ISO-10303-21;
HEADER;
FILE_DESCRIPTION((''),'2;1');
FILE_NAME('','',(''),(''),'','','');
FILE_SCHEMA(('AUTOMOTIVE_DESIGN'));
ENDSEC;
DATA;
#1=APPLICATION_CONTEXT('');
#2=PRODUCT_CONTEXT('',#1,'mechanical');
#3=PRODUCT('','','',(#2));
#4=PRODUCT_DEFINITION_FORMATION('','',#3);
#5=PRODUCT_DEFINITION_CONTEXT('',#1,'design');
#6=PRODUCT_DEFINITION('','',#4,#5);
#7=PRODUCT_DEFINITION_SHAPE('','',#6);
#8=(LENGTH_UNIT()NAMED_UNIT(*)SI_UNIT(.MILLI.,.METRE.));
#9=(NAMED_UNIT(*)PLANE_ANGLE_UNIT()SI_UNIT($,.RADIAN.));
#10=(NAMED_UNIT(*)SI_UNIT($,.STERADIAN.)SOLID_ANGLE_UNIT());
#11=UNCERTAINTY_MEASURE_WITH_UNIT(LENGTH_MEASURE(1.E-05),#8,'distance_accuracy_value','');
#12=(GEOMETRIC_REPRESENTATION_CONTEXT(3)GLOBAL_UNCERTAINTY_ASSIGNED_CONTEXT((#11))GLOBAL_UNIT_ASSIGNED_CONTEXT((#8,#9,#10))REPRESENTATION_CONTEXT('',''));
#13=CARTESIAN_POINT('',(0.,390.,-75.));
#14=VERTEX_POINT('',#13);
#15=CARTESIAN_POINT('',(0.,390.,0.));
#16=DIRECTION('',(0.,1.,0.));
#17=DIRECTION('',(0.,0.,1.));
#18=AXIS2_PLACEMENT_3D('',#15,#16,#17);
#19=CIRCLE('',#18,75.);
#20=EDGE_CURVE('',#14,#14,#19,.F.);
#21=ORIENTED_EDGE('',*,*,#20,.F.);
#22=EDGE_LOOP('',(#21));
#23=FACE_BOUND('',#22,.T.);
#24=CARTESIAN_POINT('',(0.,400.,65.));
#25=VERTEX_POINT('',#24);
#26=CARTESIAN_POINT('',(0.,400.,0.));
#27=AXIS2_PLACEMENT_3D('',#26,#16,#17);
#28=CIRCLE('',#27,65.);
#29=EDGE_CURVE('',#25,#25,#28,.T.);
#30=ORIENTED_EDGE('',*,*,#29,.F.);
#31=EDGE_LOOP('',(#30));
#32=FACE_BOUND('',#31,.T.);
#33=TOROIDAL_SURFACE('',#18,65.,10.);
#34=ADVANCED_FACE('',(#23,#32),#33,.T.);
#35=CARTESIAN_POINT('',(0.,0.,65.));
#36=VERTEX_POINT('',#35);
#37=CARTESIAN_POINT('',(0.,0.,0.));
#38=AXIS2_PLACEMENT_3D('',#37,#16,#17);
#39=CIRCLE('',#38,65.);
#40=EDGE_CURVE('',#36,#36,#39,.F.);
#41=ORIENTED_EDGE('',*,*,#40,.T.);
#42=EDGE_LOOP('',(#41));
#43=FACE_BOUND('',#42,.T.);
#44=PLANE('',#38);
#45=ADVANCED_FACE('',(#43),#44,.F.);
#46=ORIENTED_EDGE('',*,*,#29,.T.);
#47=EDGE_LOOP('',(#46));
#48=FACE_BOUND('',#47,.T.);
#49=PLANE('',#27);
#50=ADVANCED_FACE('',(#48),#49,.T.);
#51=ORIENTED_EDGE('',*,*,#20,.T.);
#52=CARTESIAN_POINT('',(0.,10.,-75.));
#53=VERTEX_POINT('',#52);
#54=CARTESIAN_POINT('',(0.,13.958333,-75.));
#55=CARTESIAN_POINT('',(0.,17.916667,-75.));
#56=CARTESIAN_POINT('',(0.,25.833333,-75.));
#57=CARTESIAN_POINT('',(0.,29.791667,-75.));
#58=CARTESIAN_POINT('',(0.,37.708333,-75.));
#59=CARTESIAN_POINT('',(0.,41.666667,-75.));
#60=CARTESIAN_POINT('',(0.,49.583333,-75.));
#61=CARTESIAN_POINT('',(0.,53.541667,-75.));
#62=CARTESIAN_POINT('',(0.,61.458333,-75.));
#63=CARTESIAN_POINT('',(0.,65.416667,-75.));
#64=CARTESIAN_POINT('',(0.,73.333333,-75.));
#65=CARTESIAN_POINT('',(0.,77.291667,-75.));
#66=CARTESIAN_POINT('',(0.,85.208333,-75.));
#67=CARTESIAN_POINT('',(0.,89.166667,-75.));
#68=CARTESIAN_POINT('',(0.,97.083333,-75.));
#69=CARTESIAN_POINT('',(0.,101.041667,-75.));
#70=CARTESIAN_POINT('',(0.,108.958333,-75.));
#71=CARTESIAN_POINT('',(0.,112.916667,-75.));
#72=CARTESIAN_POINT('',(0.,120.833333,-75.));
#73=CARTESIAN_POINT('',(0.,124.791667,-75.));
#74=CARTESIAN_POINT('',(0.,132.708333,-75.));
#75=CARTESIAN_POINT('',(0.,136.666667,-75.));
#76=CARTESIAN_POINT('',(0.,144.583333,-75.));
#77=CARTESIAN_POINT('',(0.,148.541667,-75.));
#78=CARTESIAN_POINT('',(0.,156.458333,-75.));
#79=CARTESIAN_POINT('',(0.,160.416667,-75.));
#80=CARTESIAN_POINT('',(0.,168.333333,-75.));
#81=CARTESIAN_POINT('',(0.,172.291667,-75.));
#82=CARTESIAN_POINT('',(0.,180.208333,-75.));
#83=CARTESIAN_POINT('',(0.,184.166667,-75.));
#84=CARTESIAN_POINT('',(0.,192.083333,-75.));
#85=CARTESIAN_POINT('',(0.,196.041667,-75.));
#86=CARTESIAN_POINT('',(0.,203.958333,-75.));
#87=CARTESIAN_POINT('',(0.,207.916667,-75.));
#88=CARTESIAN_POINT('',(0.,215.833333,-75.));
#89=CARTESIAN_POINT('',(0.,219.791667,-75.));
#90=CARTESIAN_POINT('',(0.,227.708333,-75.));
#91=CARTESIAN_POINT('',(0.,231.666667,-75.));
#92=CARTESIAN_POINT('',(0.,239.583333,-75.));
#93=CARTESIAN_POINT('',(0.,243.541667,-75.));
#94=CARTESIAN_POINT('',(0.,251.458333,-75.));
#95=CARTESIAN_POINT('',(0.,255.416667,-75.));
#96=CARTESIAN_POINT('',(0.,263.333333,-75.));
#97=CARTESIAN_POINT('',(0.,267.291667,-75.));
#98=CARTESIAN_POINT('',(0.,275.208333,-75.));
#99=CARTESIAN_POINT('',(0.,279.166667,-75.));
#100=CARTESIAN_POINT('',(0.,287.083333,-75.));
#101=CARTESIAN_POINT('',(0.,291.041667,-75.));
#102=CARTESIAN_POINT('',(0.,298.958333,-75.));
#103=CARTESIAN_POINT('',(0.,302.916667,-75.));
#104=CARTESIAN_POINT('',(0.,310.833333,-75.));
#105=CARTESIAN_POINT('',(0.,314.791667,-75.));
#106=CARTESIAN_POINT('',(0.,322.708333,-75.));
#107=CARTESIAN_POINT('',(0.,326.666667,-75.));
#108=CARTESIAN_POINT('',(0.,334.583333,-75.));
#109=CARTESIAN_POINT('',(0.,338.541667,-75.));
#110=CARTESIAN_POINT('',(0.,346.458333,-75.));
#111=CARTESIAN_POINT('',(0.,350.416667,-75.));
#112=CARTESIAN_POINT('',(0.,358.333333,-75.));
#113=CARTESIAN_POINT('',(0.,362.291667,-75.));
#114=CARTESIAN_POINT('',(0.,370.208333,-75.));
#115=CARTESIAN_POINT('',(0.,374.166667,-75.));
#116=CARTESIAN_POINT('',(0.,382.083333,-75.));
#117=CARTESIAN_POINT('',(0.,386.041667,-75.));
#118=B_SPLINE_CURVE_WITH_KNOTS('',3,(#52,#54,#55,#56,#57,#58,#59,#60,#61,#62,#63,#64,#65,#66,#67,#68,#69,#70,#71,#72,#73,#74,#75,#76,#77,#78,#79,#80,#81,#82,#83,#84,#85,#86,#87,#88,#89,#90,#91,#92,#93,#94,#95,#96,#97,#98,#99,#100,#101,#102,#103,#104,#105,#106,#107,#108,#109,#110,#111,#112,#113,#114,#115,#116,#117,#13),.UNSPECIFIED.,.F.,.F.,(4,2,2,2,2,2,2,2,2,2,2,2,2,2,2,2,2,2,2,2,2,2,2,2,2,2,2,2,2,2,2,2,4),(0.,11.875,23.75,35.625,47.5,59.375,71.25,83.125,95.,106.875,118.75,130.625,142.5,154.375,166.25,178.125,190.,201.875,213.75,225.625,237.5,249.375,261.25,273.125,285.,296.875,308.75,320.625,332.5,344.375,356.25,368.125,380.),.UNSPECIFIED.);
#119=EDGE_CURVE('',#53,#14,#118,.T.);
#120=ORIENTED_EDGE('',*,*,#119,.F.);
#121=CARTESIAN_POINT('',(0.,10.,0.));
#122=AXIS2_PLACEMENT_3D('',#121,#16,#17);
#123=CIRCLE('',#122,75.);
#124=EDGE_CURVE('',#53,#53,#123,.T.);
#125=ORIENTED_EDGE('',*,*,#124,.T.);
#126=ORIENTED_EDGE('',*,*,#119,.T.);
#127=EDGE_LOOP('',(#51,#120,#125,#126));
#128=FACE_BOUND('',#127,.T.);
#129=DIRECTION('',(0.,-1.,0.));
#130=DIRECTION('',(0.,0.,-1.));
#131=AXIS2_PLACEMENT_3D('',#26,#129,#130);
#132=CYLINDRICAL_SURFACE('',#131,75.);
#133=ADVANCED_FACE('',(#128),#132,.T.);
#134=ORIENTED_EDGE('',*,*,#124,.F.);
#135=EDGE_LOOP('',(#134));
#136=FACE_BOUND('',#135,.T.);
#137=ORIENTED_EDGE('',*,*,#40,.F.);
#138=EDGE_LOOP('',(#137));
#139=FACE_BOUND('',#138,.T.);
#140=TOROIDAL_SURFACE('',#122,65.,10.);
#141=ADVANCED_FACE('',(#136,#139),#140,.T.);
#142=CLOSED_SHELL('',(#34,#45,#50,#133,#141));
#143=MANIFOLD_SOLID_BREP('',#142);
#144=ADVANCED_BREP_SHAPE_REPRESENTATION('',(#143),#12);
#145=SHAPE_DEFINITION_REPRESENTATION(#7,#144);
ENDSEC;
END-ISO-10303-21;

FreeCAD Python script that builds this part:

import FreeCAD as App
import Part
import Sketcher


def edges_at(feature, points):
    """Names of the edges that pass closest to the given points."""
    edges = feature.Shape.Edges
    near = lambda p: min(range(len(edges)), key=lambda i: edges[i].distToShape(Part.Vertex(*p))[0])
    return sorted({f"Edge{near(p) + 1}" for p in points})

doc = App.newDocument("Part")
params = doc.addObject("Spreadsheet::Sheet", "Params")
for row, (alias, value) in enumerate([
    ("sketch1_diameter", "150 mm"),
    ("pad1_length", "400 mm"),
    ("fillet_radius", "10 mm"),
    ("fillet2_radius", "10 mm"),
], start=1):
    params.set(f"A{row}", alias)
    params.set(f"B{row}", "=" + value)
    params.setAlias(f"B{row}", alias)

body = doc.addObject("PartDesign::Body", "Body")

# Sketch on XZ plane
sketch1 = doc.addObject("Sketcher::SketchObject", "Sketch")
body.addObject(sketch1)
sketch1.AttachmentSupport = (doc.XZ_Plane, [""])
sketch1.MapMode = "FlatFace"
sketch1.addGeometry(Part.Circle(App.Vector(0, 0, 0), App.Vector(0, 0, 1), 75), False)
sketch1.addConstraint(Sketcher.Constraint("Coincident", 0, 3, -1, 1))
sketch1.addConstraint(Sketcher.Constraint("Diameter", 0, 150.0))
sketch1.setExpression("Constraints[1]", "Params.sketch1_diameter")
pad1 = doc.addObject("PartDesign::Pad", "Pad")
body.addObject(pad1)
pad1.Profile = sketch1
pad1.setExpression("Length", "Params.pad1_length")
pad1.Reversed = True
doc.recompute()

fillet = doc.addObject("PartDesign::Fillet", "Fillet")
body.addObject(fillet)
fillet.Base = (pad1, edges_at(pad1, [(0, 400, 75)]))
fillet.setExpression("Radius", "Params.fillet_radius")
doc.recompute()

fillet2 = doc.addObject("PartDesign::Fillet", "Fillet001")
body.addObject(fillet2)
fillet2.Base = (fillet, edges_at(fillet, [(0, 0, 75)]))
fillet2.setExpression("Radius", "Params.fillet2_radius")

doc.recompute()
